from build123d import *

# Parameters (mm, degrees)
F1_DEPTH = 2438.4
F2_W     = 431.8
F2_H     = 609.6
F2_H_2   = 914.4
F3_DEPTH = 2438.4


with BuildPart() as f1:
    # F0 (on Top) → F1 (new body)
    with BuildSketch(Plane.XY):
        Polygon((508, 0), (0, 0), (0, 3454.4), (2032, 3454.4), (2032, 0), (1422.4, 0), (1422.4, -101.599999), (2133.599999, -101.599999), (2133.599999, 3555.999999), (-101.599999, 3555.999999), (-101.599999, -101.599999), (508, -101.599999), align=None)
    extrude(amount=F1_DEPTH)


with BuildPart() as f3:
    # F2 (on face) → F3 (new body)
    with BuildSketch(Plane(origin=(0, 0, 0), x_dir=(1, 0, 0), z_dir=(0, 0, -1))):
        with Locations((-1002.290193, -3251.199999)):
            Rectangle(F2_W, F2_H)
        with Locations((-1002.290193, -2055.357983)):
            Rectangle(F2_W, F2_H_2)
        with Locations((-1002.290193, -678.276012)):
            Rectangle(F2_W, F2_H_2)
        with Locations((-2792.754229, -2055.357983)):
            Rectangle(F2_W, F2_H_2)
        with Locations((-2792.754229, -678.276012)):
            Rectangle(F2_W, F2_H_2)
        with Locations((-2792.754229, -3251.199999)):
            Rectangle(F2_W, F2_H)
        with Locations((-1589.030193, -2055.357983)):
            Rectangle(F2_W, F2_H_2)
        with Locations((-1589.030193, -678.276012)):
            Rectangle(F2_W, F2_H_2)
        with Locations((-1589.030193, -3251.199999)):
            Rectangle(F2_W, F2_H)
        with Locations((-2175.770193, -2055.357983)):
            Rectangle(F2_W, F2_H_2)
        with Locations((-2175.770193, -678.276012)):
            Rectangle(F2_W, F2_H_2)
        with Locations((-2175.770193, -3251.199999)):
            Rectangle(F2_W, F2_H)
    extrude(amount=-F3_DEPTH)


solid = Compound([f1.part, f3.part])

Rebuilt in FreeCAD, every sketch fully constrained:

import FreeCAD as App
import Part
import Sketcher
Q = App.Units.Quantity

doc = App.newDocument("Part")
params = doc.addObject("Spreadsheet::Sheet", "Params")
for row, (alias, value) in enumerate([
    ("sketch1_width", "20 in"),
    ("sketch1_width2", "80 in"),
    ("sketch1_width3", "24 in"),
    ("sketch1_width4", "28 in"),
    ("sketch1_height", "136 in"),
    ("pad1_length", "96 in"),
    ("sketch2_width", "17 in"),
    ("sketch2_height", "24 in"),
    ("sketch2_height2", "36 in"),
    ("pad2_length", "96 in"),
], start=1):
    params.set(f"A{row}", alias)
    params.set(f"B{row}", "=" + value)
    params.setAlias(f"B{row}", alias)

body = doc.addObject("PartDesign::Body", "Body")

# Sketch on XY plane
sketch1 = body.newObject("Sketcher::SketchObject", "Sketch")
sketch1.AttachmentSupport = (doc.getObject("XY_Plane"), [""])
sketch1.MapMode = "FlatFace"
sketch1.addGeometry(Part.LineSegment(App.Vector(508, 0, 0), App.Vector(0, 0, 0)), False)
sketch1.addGeometry(Part.LineSegment(App.Vector(0, 0, 0), App.Vector(0, 3454.4, 0)), False)
sketch1.addGeometry(Part.LineSegment(App.Vector(0, 3454.4, 0), App.Vector(2032, 3454.4, 0)), False)
sketch1.addGeometry(Part.LineSegment(App.Vector(2032, 3454.4, 0), App.Vector(2032, 0, 0)), False)
sketch1.addGeometry(Part.LineSegment(App.Vector(2032, 0, 0), App.Vector(1422.4, 0, 0)), False)
sketch1.addGeometry(Part.LineSegment(App.Vector(1422.4, 0, 0), App.Vector(1422.4, -101.599999, 0)), False)
sketch1.addGeometry(Part.LineSegment(App.Vector(1422.4, -101.599999, 0), App.Vector(2133.599999, -101.599999, 0)), False)
sketch1.addGeometry(Part.LineSegment(App.Vector(2133.599999, -101.599999, 0), App.Vector(2133.599999, 3555.999999, 0)), False)
sketch1.addGeometry(Part.LineSegment(App.Vector(2133.599999, 3555.999999, 0), App.Vector(-101.599999, 3555.999999, 0)), False)
sketch1.addGeometry(Part.LineSegment(App.Vector(-101.599999, 3555.999999, 0), App.Vector(-101.599999, -101.599999, 0)), False)
sketch1.addGeometry(Part.LineSegment(App.Vector(-101.599999, -101.599999, 0), App.Vector(508, -101.599999, 0)), False)
sketch1.addGeometry(Part.LineSegment(App.Vector(508, -101.599999, 0), App.Vector(508, 0, 0)), False)
sketch1.addConstraint(Sketcher.Constraint("Coincident", 0, 2, 1, 1))
sketch1.addConstraint(Sketcher.Constraint("Coincident", 1, 2, 2, 1))
sketch1.addConstraint(Sketcher.Constraint("Coincident", 2, 2, 3, 1))
sketch1.addConstraint(Sketcher.Constraint("Coincident", 3, 2, 4, 1))
sketch1.addConstraint(Sketcher.Constraint("Coincident", 4, 2, 5, 1))
sketch1.addConstraint(Sketcher.Constraint("Coincident", 5, 2, 6, 1))
sketch1.addConstraint(Sketcher.Constraint("Coincident", 6, 2, 7, 1))
sketch1.addConstraint(Sketcher.Constraint("Coincident", 7, 2, 8, 1))
sketch1.addConstraint(Sketcher.Constraint("Coincident", 8, 2, 9, 1))
sketch1.addConstraint(Sketcher.Constraint("Coincident", 9, 2, 10, 1))
sketch1.addConstraint(Sketcher.Constraint("Coincident", 10, 2, 11, 1))
sketch1.addConstraint(Sketcher.Constraint("Coincident", 11, 2, 0, 1))
sketch1.addConstraint(Sketcher.Constraint("Horizontal", 0))
sketch1.addConstraint(Sketcher.Constraint("Vertical", 1))
sketch1.addConstraint(Sketcher.Constraint("Horizontal", 2))
sketch1.addConstraint(Sketcher.Constraint("Vertical", 3))
sketch1.addConstraint(Sketcher.Constraint("Horizontal", 4))
sketch1.addConstraint(Sketcher.Constraint("Vertical", 5))
sketch1.addConstraint(Sketcher.Constraint("Horizontal", 6))
sketch1.addConstraint(Sketcher.Constraint("Vertical", 7))
sketch1.addConstraint(Sketcher.Constraint("Horizontal", 8))
sketch1.addConstraint(Sketcher.Constraint("Vertical", 9))
sketch1.addConstraint(Sketcher.Constraint("Horizontal", 10))
sketch1.addConstraint(Sketcher.Constraint("Vertical", 11))
sketch1.addConstraint(Sketcher.Constraint("Coincident", 0, 2, -1, 1))
sketch1.addConstraint(Sketcher.Constraint("PointOnObject", 3, 2, -1))
sketch1.addConstraint(Sketcher.Constraint("Horizontal", 6, 2, 9, 2))
sketch1.addConstraint(Sketcher.Constraint("Equal", 4, 10))
sketch1.addConstraint(Sketcher.Constraint("DistanceX", 0, 2, 0, 1, Q("20 in")))
sketch1.addConstraint(Sketcher.Constraint("DistanceX", 2, 1, 2, 2, Q("80 in")))
sketch1.addConstraint(Sketcher.Constraint("DistanceX", 4, 2, 4, 1, Q("24 in")))
sketch1.addConstraint(Sketcher.Constraint("DistanceX", 6, 1, 6, 2, Q("28 in")))
sketch1.addConstraint(Sketcher.Constraint("DistanceY", 1, 1, 1, 2, Q("136 in")))
sketch1.addConstraint(Sketcher.Constraint("DistanceY", 5, 2, 5, 1, Q("4 in")))
sketch1.addConstraint(Sketcher.Constraint("DistanceY", 7, 1, 7, 2, Q("143.9999999 in")))
sketch1.setExpression("Constraints[28]", "Params.sketch1_width")
sketch1.setExpression("Constraints[29]", "Params.sketch1_width2")
sketch1.setExpression("Constraints[30]", "Params.sketch1_width3")
sketch1.setExpression("Constraints[31]", "Params.sketch1_width4")
sketch1.setExpression("Constraints[32]", "Params.sketch1_height")
pad1 = body.newObject("PartDesign::Pad", "Pad")
pad1.Profile = sketch1
pad1.setExpression("Length", "Params.pad1_length")
body2 = doc.addObject("PartDesign::Body", "Body001")
body2.AllowCompound = True

# Sketch on XY plane
sketch2 = body2.newObject("Sketcher::SketchObject", "Sketch001")
sketch2.AttachmentSupport = (doc.getObject("XY_Plane001"), [""])
sketch2.MapMode = "FlatFace"
sketch2.addGeometry(Part.LineSegment(App.Vector(-1218.190193, 2946.399999, 0), App.Vector(-1218.190193, 3555.999999, 0)), False)
sketch2.addGeometry(Part.LineSegment(App.Vector(-1218.190193, 3555.999999, 0), App.Vector(-786.390193, 3555.999999, 0)), False)
sketch2.addGeometry(Part.LineSegment(App.Vector(-786.390193, 3555.999999, 0), App.Vector(-786.390193, 2946.399999, 0)), False)
sketch2.addGeometry(Part.LineSegment(App.Vector(-786.390193, 2946.399999, 0), App.Vector(-1218.190193, 2946.399999, 0)), False)
sketch2.addGeometry(Part.LineSegment(App.Vector(-1218.190193, 1598.157983, 0), App.Vector(-1218.190193, 2512.557983, 0)), False)
sketch2.addGeometry(Part.LineSegment(App.Vector(-1218.190193, 2512.557983, 0), App.Vector(-786.390193, 2512.557983, 0)), False)
sketch2.addGeometry(Part.LineSegment(App.Vector(-786.390193, 2512.557983, 0), App.Vector(-786.390193, 1598.157983, 0)), False)
sketch2.addGeometry(Part.LineSegment(App.Vector(-786.390193, 1598.157983, 0), App.Vector(-1218.190193, 1598.157983, 0)), False)
sketch2.addGeometry(Part.LineSegment(App.Vector(-1218.190193, 221.076012, 0), App.Vector(-1218.190193, 1135.476012, 0)), False)
sketch2.addGeometry(Part.LineSegment(App.Vector(-1218.190193, 1135.476012, 0), App.Vector(-786.390193, 1135.476012, 0)), False)
sketch2.addGeometry(Part.LineSegment(App.Vector(-786.390193, 1135.476012, 0), App.Vector(-786.390193, 221.076012, 0)), False)
sketch2.addGeometry(Part.LineSegment(App.Vector(-786.390193, 221.076012, 0), App.Vector(-1218.190193, 221.076012, 0)), False)
sketch2.addGeometry(Part.LineSegment(App.Vector(-3008.654229, 1598.157983, 0), App.Vector(-3008.654229, 2512.557983, 0)), False)
sketch2.addGeometry(Part.LineSegment(App.Vector(-3008.654229, 2512.557983, 0), App.Vector(-2576.854229, 2512.557983, 0)), False)
sketch2.addGeometry(Part.LineSegment(App.Vector(-2576.854229, 2512.557983, 0), App.Vector(-2576.854229, 1598.157983, 0)), False)
sketch2.addGeometry(Part.LineSegment(App.Vector(-2576.854229, 1598.157983, 0), App.Vector(-3008.654229, 1598.157983, 0)), False)
sketch2.addGeometry(Part.LineSegment(App.Vector(-3008.654229, 221.076012, 0), App.Vector(-3008.654229, 1135.476012, 0)), False)
sketch2.addGeometry(Part.LineSegment(App.Vector(-3008.654229, 1135.476012, 0), App.Vector(-2576.854229, 1135.476012, 0)), False)
sketch2.addGeometry(Part.LineSegment(App.Vector(-2576.854229, 1135.476012, 0), App.Vector(-2576.854229, 221.076012, 0)), False)
sketch2.addGeometry(Part.LineSegment(App.Vector(-2576.854229, 221.076012, 0), App.Vector(-3008.654229, 221.076012, 0)), False)
sketch2.addGeometry(Part.LineSegment(App.Vector(-3008.654229, 2946.399999, 0), App.Vector(-3008.654229, 3555.999999, 0)), False)
sketch2.addGeometry(Part.LineSegment(App.Vector(-3008.654229, 3555.999999, 0), App.Vector(-2576.854229, 3555.999999, 0)), False)
sketch2.addGeometry(Part.LineSegment(App.Vector(-2576.854229, 3555.999999, 0), App.Vector(-2576.854229, 2946.399999, 0)), False)
sketch2.addGeometry(Part.LineSegment(App.Vector(-2576.854229, 2946.399999, 0), App.Vector(-3008.654229, 2946.399999, 0)), False)
sketch2.addGeometry(Part.LineSegment(App.Vector(-1804.930193, 1598.157983, 0), App.Vector(-1804.930193, 2512.557983, 0)), False)
sketch2.addGeometry(Part.LineSegment(App.Vector(-1804.930193, 2512.557983, 0), App.Vector(-1373.130193, 2512.557983, 0)), False)
sketch2.addGeometry(Part.LineSegment(App.Vector(-1373.130193, 2512.557983, 0), App.Vector(-1373.130193, 1598.157983, 0)), False)
sketch2.addGeometry(Part.LineSegment(App.Vector(-1373.130193, 1598.157983, 0), App.Vector(-1804.930193, 1598.157983, 0)), False)
sketch2.addGeometry(Part.LineSegment(App.Vector(-1804.930193, 221.076012, 0), App.Vector(-1804.930193, 1135.476012, 0)), False)
sketch2.addGeometry(Part.LineSegment(App.Vector(-1804.930193, 1135.476012, 0), App.Vector(-1373.130193, 1135.476012, 0)), False)
sketch2.addGeometry(Part.LineSegment(App.Vector(-1373.130193, 1135.476012, 0), App.Vector(-1373.130193, 221.076012, 0)), False)
sketch2.addGeometry(Part.LineSegment(App.Vector(-1373.130193, 221.076012, 0), App.Vector(-1804.930193, 221.076012, 0)), False)
sketch2.addGeometry(Part.LineSegment(App.Vector(-1804.930193, 2946.399999, 0), App.Vector(-1804.930193, 3555.999999, 0)), False)
sketch2.addGeometry(Part.LineSegment(App.Vector(-1804.930193, 3555.999999, 0), App.Vector(-1373.130193, 3555.999999, 0)), False)
sketch2.addGeometry(Part.LineSegment(App.Vector(-1373.130193, 3555.999999, 0), App.Vector(-1373.130193, 2946.399999, 0)), False)
sketch2.addGeometry(Part.LineSegment(App.Vector(-1373.130193, 2946.399999, 0), App.Vector(-1804.930193, 2946.399999, 0)), False)
sketch2.addGeometry(Part.LineSegment(App.Vector(-2391.670193, 1598.157983, 0), App.Vector(-2391.670193, 2512.557983, 0)), False)
sketch2.addGeometry(Part.LineSegment(App.Vector(-2391.670193, 2512.557983, 0), App.Vector(-1959.870193, 2512.557983, 0)), False)
sketch2.addGeometry(Part.LineSegment(App.Vector(-1959.870193, 2512.557983, 0), App.Vector(-1959.870193, 1598.157983, 0)), False)
sketch2.addGeometry(Part.LineSegment(App.Vector(-1959.870193, 1598.157983, 0), App.Vector(-2391.670193, 1598.157983, 0)), False)
sketch2.addGeometry(Part.LineSegment(App.Vector(-2391.670193, 221.076012, 0), App.Vector(-2391.670193, 1135.476012, 0)), False)
sketch2.addGeometry(Part.LineSegment(App.Vector(-2391.670193, 1135.476012, 0), App.Vector(-1959.870193, 1135.476012, 0)), False)
sketch2.addGeometry(Part.LineSegment(App.Vector(-1959.870193, 1135.476012, 0), App.Vector(-1959.870193, 221.076012, 0)), False)
sketch2.addGeometry(Part.LineSegment(App.Vector(-1959.870193, 221.076012, 0), App.Vector(-2391.670193, 221.076012, 0)), False)
sketch2.addGeometry(Part.LineSegment(App.Vector(-2391.670193, 2946.399999, 0), App.Vector(-2391.670193, 3555.999999, 0)), False)
sketch2.addGeometry(Part.LineSegment(App.Vector(-2391.670193, 3555.999999, 0), App.Vector(-1959.870193, 3555.999999, 0)), False)
sketch2.addGeometry(Part.LineSegment(App.Vector(-1959.870193, 3555.999999, 0), App.Vector(-1959.870193, 2946.399999, 0)), False)
sketch2.addGeometry(Part.LineSegment(App.Vector(-1959.870193, 2946.399999, 0), App.Vector(-2391.670193, 2946.399999, 0)), False)
sketch2.addConstraint(Sketcher.Constraint("Coincident", 0, 2, 1, 1))
sketch2.addConstraint(Sketcher.Constraint("Coincident", 1, 2, 2, 1))
sketch2.addConstraint(Sketcher.Constraint("Coincident", 2, 2, 3, 1))
sketch2.addConstraint(Sketcher.Constraint("Coincident", 3, 2, 0, 1))
sketch2.addConstraint(Sketcher.Constraint("Coincident", 4, 2, 5, 1))
sketch2.addConstraint(Sketcher.Constraint("Coincident", 5, 2, 6, 1))
sketch2.addConstraint(Sketcher.Constraint("Coincident", 6, 2, 7, 1))
sketch2.addConstraint(Sketcher.Constraint("Coincident", 7, 2, 4, 1))
sketch2.addConstraint(Sketcher.Constraint("Coincident", 8, 2, 9, 1))
sketch2.addConstraint(Sketcher.Constraint("Coincident", 9, 2, 10, 1))
sketch2.addConstraint(Sketcher.Constraint("Coincident", 10, 2, 11, 1))
sketch2.addConstraint(Sketcher.Constraint("Coincident", 11, 2, 8, 1))
sketch2.addConstraint(Sketcher.Constraint("Coincident", 12, 2, 13, 1))
sketch2.addConstraint(Sketcher.Constraint("Coincident", 13, 2, 14, 1))
sketch2.addConstraint(Sketcher.Constraint("Coincident", 14, 2, 15, 1))
sketch2.addConstraint(Sketcher.Constraint("Coincident", 15, 2, 12, 1))
sketch2.addConstraint(Sketcher.Constraint("Coincident", 16, 2, 17, 1))
sketch2.addConstraint(Sketcher.Constraint("Coincident", 17, 2, 18, 1))
sketch2.addConstraint(Sketcher.Constraint("Coincident", 18, 2, 19, 1))
sketch2.addConstraint(Sketcher.Constraint("Coincident", 19, 2, 16, 1))
sketch2.addConstraint(Sketcher.Constraint("Coincident", 20, 2, 21, 1))
sketch2.addConstraint(Sketcher.Constraint("Coincident", 21, 2, 22, 1))
sketch2.addConstraint(Sketcher.Constraint("Coincident", 22, 2, 23, 1))
sketch2.addConstraint(Sketcher.Constraint("Coincident", 23, 2, 20, 1))
sketch2.addConstraint(Sketcher.Constraint("Coincident", 24, 2, 25, 1))
sketch2.addConstraint(Sketcher.Constraint("Coincident", 25, 2, 26, 1))
sketch2.addConstraint(Sketcher.Constraint("Coincident", 26, 2, 27, 1))
sketch2.addConstraint(Sketcher.Constraint("Coincident", 27, 2, 24, 1))
sketch2.addConstraint(Sketcher.Constraint("Coincident", 28, 2, 29, 1))
sketch2.addConstraint(Sketcher.Constraint("Coincident", 29, 2, 30, 1))
sketch2.addConstraint(Sketcher.Constraint("Coincident", 30, 2, 31, 1))
sketch2.addConstraint(Sketcher.Constraint("Coincident", 31, 2, 28, 1))
sketch2.addConstraint(Sketcher.Constraint("Coincident", 32, 2, 33, 1))
sketch2.addConstraint(Sketcher.Constraint("Coincident", 33, 2, 34, 1))
sketch2.addConstraint(Sketcher.Constraint("Coincident", 34, 2, 35, 1))
sketch2.addConstraint(Sketcher.Constraint("Coincident", 35, 2, 32, 1))
sketch2.addConstraint(Sketcher.Constraint("Coincident", 36, 2, 37, 1))
sketch2.addConstraint(Sketcher.Constraint("Coincident", 37, 2, 38, 1))
sketch2.addConstraint(Sketcher.Constraint("Coincident", 38, 2, 39, 1))
sketch2.addConstraint(Sketcher.Constraint("Coincident", 39, 2, 36, 1))
sketch2.addConstraint(Sketcher.Constraint("Coincident", 40, 2, 41, 1))
sketch2.addConstraint(Sketcher.Constraint("Coincident", 41, 2, 42, 1))
sketch2.addConstraint(Sketcher.Constraint("Coincident", 42, 2, 43, 1))
sketch2.addConstraint(Sketcher.Constraint("Coincident", 43, 2, 40, 1))
sketch2.addConstraint(Sketcher.Constraint("Coincident", 44, 2, 45, 1))
sketch2.addConstraint(Sketcher.Constraint("Coincident", 45, 2, 46, 1))
sketch2.addConstraint(Sketcher.Constraint("Coincident", 46, 2, 47, 1))
sketch2.addConstraint(Sketcher.Constraint("Coincident", 47, 2, 44, 1))
sketch2.addConstraint(Sketcher.Constraint("Vertical", 0))
sketch2.addConstraint(Sketcher.Constraint("Horizontal", 1))
sketch2.addConstraint(Sketcher.Constraint("Vertical", 2))
sketch2.addConstraint(Sketcher.Constraint("Horizontal", 3))
sketch2.addConstraint(Sketcher.Constraint("Vertical", 4))
sketch2.addConstraint(Sketcher.Constraint("Horizontal", 5))
sketch2.addConstraint(Sketcher.Constraint("Vertical", 6))
sketch2.addConstraint(Sketcher.Constraint("Horizontal", 7))
sketch2.addConstraint(Sketcher.Constraint("Vertical", 8))
sketch2.addConstraint(Sketcher.Constraint("Horizontal", 9))
sketch2.addConstraint(Sketcher.Constraint("Vertical", 10))
sketch2.addConstraint(Sketcher.Constraint("Horizontal", 11))
sketch2.addConstraint(Sketcher.Constraint("Vertical", 12))
sketch2.addConstraint(Sketcher.Constraint("Horizontal", 13))
sketch2.addConstraint(Sketcher.Constraint("Vertical", 14))
sketch2.addConstraint(Sketcher.Constraint("Horizontal", 15))
sketch2.addConstraint(Sketcher.Constraint("Vertical", 16))
sketch2.addConstraint(Sketcher.Constraint("Horizontal", 17))
sketch2.addConstraint(Sketcher.Constraint("Vertical", 18))
sketch2.addConstraint(Sketcher.Constraint("Horizontal", 19))
sketch2.addConstraint(Sketcher.Constraint("Vertical", 20))
sketch2.addConstraint(Sketcher.Constraint("Horizontal", 21))
sketch2.addConstraint(Sketcher.Constraint("Vertical", 22))
sketch2.addConstraint(Sketcher.Constraint("Horizontal", 23))
sketch2.addConstraint(Sketcher.Constraint("Vertical", 24))
sketch2.addConstraint(Sketcher.Constraint("Horizontal", 25))
sketch2.addConstraint(Sketcher.Constraint("Vertical", 26))
sketch2.addConstraint(Sketcher.Constraint("Horizontal", 27))
sketch2.addConstraint(Sketcher.Constraint("Vertical", 28))
sketch2.addConstraint(Sketcher.Constraint("Horizontal", 29))
sketch2.addConstraint(Sketcher.Constraint("Vertical", 30))
sketch2.addConstraint(Sketcher.Constraint("Horizontal", 31))
sketch2.addConstraint(Sketcher.Constraint("Vertical", 32))
sketch2.addConstraint(Sketcher.Constraint("Horizontal", 33))
sketch2.addConstraint(Sketcher.Constraint("Vertical", 34))
sketch2.addConstraint(Sketcher.Constraint("Horizontal", 35))
sketch2.addConstraint(Sketcher.Constraint("Vertical", 36))
sketch2.addConstraint(Sketcher.Constraint("Horizontal", 37))
sketch2.addConstraint(Sketcher.Constraint("Vertical", 38))
sketch2.addConstraint(Sketcher.Constraint("Horizontal", 39))
sketch2.addConstraint(Sketcher.Constraint("Vertical", 40))
sketch2.addConstraint(Sketcher.Constraint("Horizontal", 41))
sketch2.addConstraint(Sketcher.Constraint("Vertical", 42))
sketch2.addConstraint(Sketcher.Constraint("Horizontal", 43))
sketch2.addConstraint(Sketcher.Constraint("Vertical", 44))
sketch2.addConstraint(Sketcher.Constraint("Horizontal", 45))
sketch2.addConstraint(Sketcher.Constraint("Vertical", 46))
sketch2.addConstraint(Sketcher.Constraint("Horizontal", 47))
sketch2.addConstraint(Sketcher.Constraint("Horizontal", 5, 2, 12, 2))
sketch2.addConstraint(Sketcher.Constraint("Horizontal", 7, 2, 14, 2))
sketch2.addConstraint(Sketcher.Constraint("Horizontal", 9, 2, 16, 2))
sketch2.addConstraint(Sketcher.Constraint("Horizontal", 11, 2, 18, 2))
sketch2.addConstraint(Sketcher.Constraint("Horizontal", 1, 2, 20, 2))
sketch2.addConstraint(Sketcher.Constraint("Horizontal", 3, 2, 22, 2))
sketch2.addConstraint(Sketcher.Constraint("Horizontal", 13, 2, 24, 2))
sketch2.addConstraint(Sketcher.Constraint("Horizontal", 15, 2, 26, 2))
sketch2.addConstraint(Sketcher.Constraint("Horizontal", 17, 2, 28, 2))
sketch2.addConstraint(Sketcher.Constraint("Horizontal", 19, 2, 30, 2))
sketch2.addConstraint(Sketcher.Constraint("Horizontal", 21, 2, 32, 2))
sketch2.addConstraint(Sketcher.Constraint("Horizontal", 23, 2, 34, 2))
sketch2.addConstraint(Sketcher.Constraint("Horizontal", 25, 2, 36, 2))
sketch2.addConstraint(Sketcher.Constraint("Horizontal", 27, 2, 38, 2))
sketch2.addConstraint(Sketcher.Constraint("Horizontal", 29, 2, 40, 2))
sketch2.addConstraint(Sketcher.Constraint("Horizontal", 31, 2, 42, 2))
sketch2.addConstraint(Sketcher.Constraint("Horizontal", 33, 2, 44, 2))
sketch2.addConstraint(Sketcher.Constraint("Horizontal", 35, 2, 46, 2))
sketch2.addConstraint(Sketcher.Constraint("Vertical", 3, 2, 4, 2))
sketch2.addConstraint(Sketcher.Constraint("Vertical", 2, 2, 5, 2))
sketch2.addConstraint(Sketcher.Constraint("Vertical", 7, 2, 8, 2))
sketch2.addConstraint(Sketcher.Constraint("Vertical", 6, 2, 9, 2))
sketch2.addConstraint(Sketcher.Constraint("Vertical", 15, 2, 16, 2))
sketch2.addConstraint(Sketcher.Constraint("Vertical", 14, 2, 17, 2))
sketch2.addConstraint(Sketcher.Constraint("Vertical", 19, 2, 20, 2))
sketch2.addConstraint(Sketcher.Constraint("Vertical", 18, 2, 21, 2))
sketch2.addConstraint(Sketcher.Constraint("Vertical", 27, 2, 28, 2))
sketch2.addConstraint(Sketcher.Constraint("Vertical", 26, 2, 29, 2))
sketch2.addConstraint(Sketcher.Constraint("Vertical", 31, 2, 32, 2))
sketch2.addConstraint(Sketcher.Constraint("Vertical", 30, 2, 33, 2))
sketch2.addConstraint(Sketcher.Constraint("Vertical", 39, 2, 40, 2))
sketch2.addConstraint(Sketcher.Constraint("Vertical", 38, 2, 41, 2))
sketch2.addConstraint(Sketcher.Constraint("Vertical", 43, 2, 44, 2))
sketch2.addConstraint(Sketcher.Constraint("Vertical", 42, 2, 45, 2))
sketch2.addConstraint(Sketcher.Constraint("Equal", 11, 13))
sketch2.addConstraint(Sketcher.Constraint("Equal", 23, 25))
sketch2.addConstraint(Sketcher.Constraint("Equal", 35, 37))
sketch2.addConstraint(Sketcher.Constraint("Equal", 6, 8))
sketch2.addConstraint(Sketcher.Constraint("DistanceX", 1, 1, 1, 2, Q("17 in")))
sketch2.addConstraint(Sketcher.Constraint("DistanceY", 0, 1, 0, 2, Q("24 in")))
sketch2.addConstraint(Sketcher.Constraint("DistanceY", 4, 1, 4, 2, Q("36 in")))
sketch2.addConstraint(Sketcher.Constraint("DistanceY", -1, 1, 0, 2, Q("140 in")))
sketch2.addConstraint(Sketcher.Constraint("DistanceX", 24, 2, 4, 2, Q("23.1 in")))
sketch2.addConstraint(Sketcher.Constraint("DistanceX", 36, 2, 24, 2, Q("23.1 in")))
sketch2.addConstraint(Sketcher.Constraint("DistanceY", -1, 1, 8, 2, Q("1135.476012 mm")))
sketch2.addConstraint(Sketcher.Constraint("DistanceX", 12, 2, -1, 1, Q("3008.654229 mm")))
sketch2.addConstraint(Sketcher.Constraint("DistanceY", 8, 2, 7, 2, Q("462.681971 mm")))
sketch2.addConstraint(Sketcher.Constraint("DistanceX", 0, 2, -1, 1, Q("1218.190193 mm")))
sketch2.setExpression("Constraints[134]", "Params.sketch2_width")
sketch2.setExpression("Constraints[135]", "Params.sketch2_height")
sketch2.setExpression("Constraints[136]", "Params.sketch2_height2")
pad2 = body2.newObject("PartDesign::Pad", "Pad001")
pad2.Profile = sketch2
pad2.setExpression("Length", "Params.pad2_length")

doc.recompute()
